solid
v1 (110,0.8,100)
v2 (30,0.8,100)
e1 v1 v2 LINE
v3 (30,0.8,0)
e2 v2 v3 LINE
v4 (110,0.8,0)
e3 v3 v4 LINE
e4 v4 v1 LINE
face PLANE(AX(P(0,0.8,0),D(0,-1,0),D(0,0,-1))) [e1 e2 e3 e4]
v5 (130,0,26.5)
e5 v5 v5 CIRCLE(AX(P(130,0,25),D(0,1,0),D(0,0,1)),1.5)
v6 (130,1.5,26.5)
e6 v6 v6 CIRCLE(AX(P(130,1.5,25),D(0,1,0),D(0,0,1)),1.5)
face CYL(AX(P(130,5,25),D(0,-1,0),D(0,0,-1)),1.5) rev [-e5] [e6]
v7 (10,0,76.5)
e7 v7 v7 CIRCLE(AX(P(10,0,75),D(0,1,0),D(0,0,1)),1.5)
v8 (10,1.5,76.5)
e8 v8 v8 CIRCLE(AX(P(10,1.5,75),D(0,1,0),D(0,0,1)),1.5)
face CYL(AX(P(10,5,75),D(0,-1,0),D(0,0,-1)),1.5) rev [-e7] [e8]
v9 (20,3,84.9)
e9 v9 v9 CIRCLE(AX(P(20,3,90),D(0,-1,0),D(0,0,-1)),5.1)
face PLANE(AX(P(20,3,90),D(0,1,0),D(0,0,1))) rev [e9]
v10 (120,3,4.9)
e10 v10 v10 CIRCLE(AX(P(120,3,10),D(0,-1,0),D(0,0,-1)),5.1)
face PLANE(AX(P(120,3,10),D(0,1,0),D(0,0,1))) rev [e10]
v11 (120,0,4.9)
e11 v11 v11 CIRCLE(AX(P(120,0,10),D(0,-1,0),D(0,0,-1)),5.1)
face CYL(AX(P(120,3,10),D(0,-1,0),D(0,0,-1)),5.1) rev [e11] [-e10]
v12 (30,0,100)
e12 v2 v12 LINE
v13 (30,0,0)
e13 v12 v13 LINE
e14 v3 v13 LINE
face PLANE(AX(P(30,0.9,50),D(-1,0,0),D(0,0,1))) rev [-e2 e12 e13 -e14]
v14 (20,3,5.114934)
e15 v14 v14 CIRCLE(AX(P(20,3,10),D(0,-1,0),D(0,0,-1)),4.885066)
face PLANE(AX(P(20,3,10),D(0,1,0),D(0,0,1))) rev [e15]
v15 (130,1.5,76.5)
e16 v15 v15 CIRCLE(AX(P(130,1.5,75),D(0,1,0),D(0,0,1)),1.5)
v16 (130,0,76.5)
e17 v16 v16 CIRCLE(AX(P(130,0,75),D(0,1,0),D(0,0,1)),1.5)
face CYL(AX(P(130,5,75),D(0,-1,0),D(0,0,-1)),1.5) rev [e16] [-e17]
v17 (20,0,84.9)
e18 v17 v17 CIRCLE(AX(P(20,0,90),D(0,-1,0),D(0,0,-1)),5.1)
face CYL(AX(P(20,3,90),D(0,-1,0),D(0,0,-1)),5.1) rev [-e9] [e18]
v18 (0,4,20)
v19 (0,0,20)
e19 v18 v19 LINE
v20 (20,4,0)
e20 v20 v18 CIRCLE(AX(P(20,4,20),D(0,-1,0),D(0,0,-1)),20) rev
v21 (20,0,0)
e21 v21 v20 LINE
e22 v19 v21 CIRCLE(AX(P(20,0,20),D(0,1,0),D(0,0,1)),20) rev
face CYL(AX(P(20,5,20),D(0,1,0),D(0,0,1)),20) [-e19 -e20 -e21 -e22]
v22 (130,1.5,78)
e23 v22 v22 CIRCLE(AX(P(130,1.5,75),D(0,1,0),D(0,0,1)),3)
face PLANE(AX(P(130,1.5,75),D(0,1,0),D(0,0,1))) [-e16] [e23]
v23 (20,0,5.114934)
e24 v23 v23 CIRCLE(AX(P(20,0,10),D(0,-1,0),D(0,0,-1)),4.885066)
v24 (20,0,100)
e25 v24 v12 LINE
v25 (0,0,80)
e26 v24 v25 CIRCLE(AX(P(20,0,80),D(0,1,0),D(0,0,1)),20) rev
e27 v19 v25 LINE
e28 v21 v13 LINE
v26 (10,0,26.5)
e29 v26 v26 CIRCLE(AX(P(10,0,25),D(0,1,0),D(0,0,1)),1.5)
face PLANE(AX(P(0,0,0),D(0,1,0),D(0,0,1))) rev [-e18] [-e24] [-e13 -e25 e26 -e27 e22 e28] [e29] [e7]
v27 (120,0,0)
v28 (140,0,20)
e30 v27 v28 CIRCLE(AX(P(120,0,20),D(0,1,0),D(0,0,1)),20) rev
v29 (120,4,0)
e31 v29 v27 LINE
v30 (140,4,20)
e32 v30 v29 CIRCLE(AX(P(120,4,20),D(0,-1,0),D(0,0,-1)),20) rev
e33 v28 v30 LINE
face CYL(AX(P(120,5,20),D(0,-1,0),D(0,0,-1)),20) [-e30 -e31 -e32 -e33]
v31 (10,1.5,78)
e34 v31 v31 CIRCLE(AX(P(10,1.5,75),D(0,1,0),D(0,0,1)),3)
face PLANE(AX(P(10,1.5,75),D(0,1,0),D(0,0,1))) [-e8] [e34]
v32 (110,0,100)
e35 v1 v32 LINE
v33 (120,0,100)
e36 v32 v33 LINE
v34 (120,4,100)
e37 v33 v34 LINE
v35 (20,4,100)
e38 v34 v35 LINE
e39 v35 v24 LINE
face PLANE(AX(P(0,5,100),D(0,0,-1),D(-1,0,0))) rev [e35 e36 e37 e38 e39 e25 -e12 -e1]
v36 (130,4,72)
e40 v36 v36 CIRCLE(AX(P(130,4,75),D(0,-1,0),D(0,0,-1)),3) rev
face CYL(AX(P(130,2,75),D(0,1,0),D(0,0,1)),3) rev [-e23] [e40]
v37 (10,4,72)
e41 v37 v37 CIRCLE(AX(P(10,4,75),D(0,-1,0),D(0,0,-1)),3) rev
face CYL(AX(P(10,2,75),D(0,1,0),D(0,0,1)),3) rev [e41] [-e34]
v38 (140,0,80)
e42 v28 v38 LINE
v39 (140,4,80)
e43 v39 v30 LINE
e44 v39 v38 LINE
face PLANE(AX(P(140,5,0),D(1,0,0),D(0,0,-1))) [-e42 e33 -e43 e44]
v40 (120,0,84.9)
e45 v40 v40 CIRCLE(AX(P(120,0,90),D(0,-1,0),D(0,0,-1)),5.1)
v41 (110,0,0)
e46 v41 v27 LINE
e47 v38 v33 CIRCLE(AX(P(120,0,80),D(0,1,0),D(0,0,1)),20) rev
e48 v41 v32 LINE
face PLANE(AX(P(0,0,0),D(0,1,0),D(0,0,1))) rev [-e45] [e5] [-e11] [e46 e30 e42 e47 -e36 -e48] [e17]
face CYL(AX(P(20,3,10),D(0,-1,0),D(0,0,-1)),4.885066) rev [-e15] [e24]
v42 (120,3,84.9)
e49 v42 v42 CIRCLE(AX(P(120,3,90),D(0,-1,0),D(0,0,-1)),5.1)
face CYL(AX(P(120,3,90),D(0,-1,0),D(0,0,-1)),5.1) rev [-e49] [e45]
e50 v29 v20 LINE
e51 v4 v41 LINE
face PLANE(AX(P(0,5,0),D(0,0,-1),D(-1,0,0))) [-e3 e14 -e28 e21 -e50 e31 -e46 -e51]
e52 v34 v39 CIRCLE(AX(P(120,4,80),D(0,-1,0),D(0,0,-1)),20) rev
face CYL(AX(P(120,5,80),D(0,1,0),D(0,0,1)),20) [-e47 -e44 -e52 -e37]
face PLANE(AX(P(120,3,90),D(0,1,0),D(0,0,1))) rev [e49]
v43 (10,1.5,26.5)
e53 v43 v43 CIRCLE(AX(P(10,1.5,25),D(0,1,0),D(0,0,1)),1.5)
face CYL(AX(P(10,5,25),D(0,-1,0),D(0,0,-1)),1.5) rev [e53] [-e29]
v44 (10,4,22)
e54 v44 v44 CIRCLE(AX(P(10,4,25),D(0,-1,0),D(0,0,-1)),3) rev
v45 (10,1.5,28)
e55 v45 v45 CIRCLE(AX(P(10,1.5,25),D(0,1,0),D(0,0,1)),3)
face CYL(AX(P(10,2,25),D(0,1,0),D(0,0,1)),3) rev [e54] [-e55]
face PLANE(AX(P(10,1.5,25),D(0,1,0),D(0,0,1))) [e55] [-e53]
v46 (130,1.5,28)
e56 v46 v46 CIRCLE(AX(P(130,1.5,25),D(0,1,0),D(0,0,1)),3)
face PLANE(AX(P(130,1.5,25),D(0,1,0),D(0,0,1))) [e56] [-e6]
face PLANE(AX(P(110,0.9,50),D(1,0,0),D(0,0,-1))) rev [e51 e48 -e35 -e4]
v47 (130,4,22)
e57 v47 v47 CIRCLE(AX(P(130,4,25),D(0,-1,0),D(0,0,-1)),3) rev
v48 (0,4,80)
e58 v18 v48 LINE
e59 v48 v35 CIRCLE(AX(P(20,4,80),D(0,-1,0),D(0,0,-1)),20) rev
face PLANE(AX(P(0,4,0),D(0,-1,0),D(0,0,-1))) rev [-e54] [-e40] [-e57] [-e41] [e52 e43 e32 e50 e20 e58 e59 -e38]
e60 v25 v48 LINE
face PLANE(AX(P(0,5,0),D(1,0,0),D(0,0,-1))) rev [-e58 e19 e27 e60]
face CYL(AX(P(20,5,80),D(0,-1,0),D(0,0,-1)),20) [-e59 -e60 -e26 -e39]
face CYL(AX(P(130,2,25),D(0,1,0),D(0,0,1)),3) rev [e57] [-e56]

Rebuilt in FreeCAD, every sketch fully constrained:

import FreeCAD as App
import Part
import Sketcher
from FreeCAD import Vector
Q = App.Units.Quantity


def edges_at(feature, points):
    """Names of the edges that pass closest to the given points."""
    edges = feature.Shape.Edges
    near = lambda p: min(range(len(edges)), key=lambda i: edges[i].distToShape(Part.Vertex(*p))[0])
    return sorted({f"Edge{near(p) + 1}" for p in points})


def add_polygon(sketch, points):
    """Adds a closed chain of lines whose ends are joined by coincident constraints."""
    first, n = sketch.GeometryCount, len(points)
    for a, b in zip(points, points[1:] + points[:1]):
        sketch.addGeometry(Part.LineSegment(App.Vector(*a, 0), App.Vector(*b, 0)), False)
    for i in range(n):
        sketch.addConstraint(Sketcher.Constraint("Coincident", first + i, 2, first + (i + 1) % n, 1))

doc = App.newDocument("Part")
params = doc.addObject("Spreadsheet::Sheet", "Params")
for row, (alias, value) in enumerate([
    ("sketch1_diameter", "3 mm"),
    ("sketch1_width", "140 mm"),
    ("sketch1_height", "100 mm"),
    ("pad1_length", "5 mm"),
    ("fillet_radius", "20 mm"),
    ("sketch2_diameter", "6 mm"),
    ("pocket1_length", "3 mm"),
    ("sketch3_width", "80 mm"),
    ("sketch3_height", "100 mm"),
    ("pocket2_length", "0.9 mm"),
    ("sketch4_diameter", "5 mm"),
    ("pocket3_length", "4 mm"),
    ("pocket4_length", "1 mm"),
    ("sketch6_diameter", "5 mm"),
    ("pad2_length", "1 mm"),
    ("sketch7_diameter", "6 mm"),
    ("pocket5_length", "0.5 mm"),
    ("sketch8_diameter", "10.2 mm"),
    ("pocket6_length", "3 mm"),
    ("sketch9_width", "80 mm"),
    ("sketch9_height", "100 mm"),
    ("pad3_length", "0.1 mm"),
], start=1):
    params.set(f"A{row}", alias)
    params.set(f"B{row}", "=" + value)
    params.setAlias(f"B{row}", alias)

body = doc.addObject("PartDesign::Body", "Body")

# Sketch on XZ plane
sketch1 = body.newObject("Sketcher::SketchObject", "Sketch")
sketch1.AttachmentSupport = (doc.getObject("XZ_Plane"), [""])
sketch1.MapMode = "FlatFace"
add_polygon(sketch1, [(0, 0), (0, 100), (140, 100), (140, 0)])  # lines 0-3
sketch1.addGeometry(Part.Circle(Vector(10, 75, 0), Vector(0, 0, 1), 1.5), False)  # 4
sketch1.addGeometry(Part.Circle(Vector(130, 75, 0), Vector(0, 0, 1), 1.5), False)  # 5
sketch1.addGeometry(Part.Circle(Vector(10, 25, 0), Vector(0, 0, 1), 1.5), False)  # 6
sketch1.addGeometry(Part.Circle(Vector(130, 25, 0), Vector(0, 0, 1), 1.5), False)  # 7
sketch1.addConstraint([
    Sketcher.Constraint("Vertical", 0),
    Sketcher.Constraint("Horizontal", 1),
    Sketcher.Constraint("Vertical", 2),
    Sketcher.Constraint("Horizontal", 3),
    Sketcher.Constraint("Coincident", 3, 2, -1, 1),
    Sketcher.Constraint("Equal", 4, 5),
    Sketcher.Constraint("Equal", 5, 6),
    Sketcher.Constraint("Equal", 6, 7),
    Sketcher.Constraint("Horizontal", 4, 3, 5, 3),
    Sketcher.Constraint("Horizontal", 6, 3, 7, 3),
    Sketcher.Constraint("Vertical", 4, 3, 6, 3),
    Sketcher.Constraint("Vertical", 5, 3, 7, 3),
    Sketcher.Constraint("Diameter", 4, Q("3 mm")),
    Sketcher.Constraint("DistanceX", 1, 1, 1, 2, Q("140 mm")),
    Sketcher.Constraint("DistanceY", 0, 1, 0, 2, Q("100 mm")),
    Sketcher.Constraint("DistanceX", -1, 1, 4, 3, Q("10 mm")),
    Sketcher.Constraint("DistanceY", -1, 1, 4, 3, Q("75 mm")),
    Sketcher.Constraint("DistanceX", -1, 1, 5, 3, Q("130 mm")),
    Sketcher.Constraint("DistanceY", -1, 1, 6, 3, Q("25 mm")),
])
sketch1.setExpression("Constraints[16]", "Params.sketch1_diameter")
sketch1.setExpression("Constraints[17]", "Params.sketch1_width")
sketch1.setExpression("Constraints[18]", "Params.sketch1_height")
pad1 = body.newObject("PartDesign::Pad", "Pad")
pad1.Profile = sketch1
pad1.setExpression("Length", "Params.pad1_length")
pad1.Reversed = True
doc.recompute()

fillet = body.newObject("PartDesign::Fillet", "Fillet")
fillet.Base = (pad1, edges_at(pad1, [
    (140, 2.5, 100),
    (0, 2.5, 100),
    (0, 2.5, 0),
    (140, 2.5, 0),
]))
fillet.setExpression("Radius", "Params.fillet_radius")

# Sketch on XZ plane
sketch2 = body.newObject("Sketcher::SketchObject", "Sketch001")
sketch2.AttachmentSupport = (doc.getObject("XZ_Plane"), [""])
sketch2.MapMode = "FlatFace"
sketch2.AttachmentOffset = App.Placement(Vector(0, 0, -5), App.Rotation())
sketch2.addGeometry([
    Part.Circle(Vector(10, 25, 0), Vector(0, 0, 1), 3),
    Part.Circle(Vector(10, 75, 0), Vector(0, 0, 1), 3),
    Part.Circle(Vector(130, 25, 0), Vector(0, 0, 1), 3),
    Part.Circle(Vector(130, 75, 0), Vector(0, 0, 1), 3),
], False)
sketch2.addConstraint([
    Sketcher.Constraint("Equal", 0, 1),
    Sketcher.Constraint("Equal", 1, 2),
    Sketcher.Constraint("Equal", 2, 3),
    Sketcher.Constraint("Horizontal", 0, 3, 2, 3),
    Sketcher.Constraint("Horizontal", 1, 3, 3, 3),
    Sketcher.Constraint("Vertical", 0, 3, 1, 3),
    Sketcher.Constraint("Vertical", 2, 3, 3, 3),
    Sketcher.Constraint("Diameter", 0, Q("6 mm")),
    Sketcher.Constraint("DistanceX", -1, 1, 0, 3, Q("10 mm")),
    Sketcher.Constraint("DistanceY", -1, 1, 0, 3, Q("25 mm")),
    Sketcher.Constraint("DistanceY", -1, 1, 1, 3, Q("75 mm")),
    Sketcher.Constraint("DistanceX", -1, 1, 2, 3, Q("130 mm")),
])
sketch2.setExpression("Constraints[7]", "Params.sketch2_diameter")
pocket1 = body.newObject("PartDesign::Pocket", "Pocket")
pocket1.Profile = sketch2
pocket1.setExpression("Length", "Params.pocket1_length")
pocket1.Reversed = True

# Sketch on XZ plane
sketch3 = body.newObject("Sketcher::SketchObject", "Sketch002")
sketch3.AttachmentSupport = (doc.getObject("XZ_Plane"), [""])
sketch3.MapMode = "FlatFace"
add_polygon(sketch3, [(110, 100), (30, 100), (30, 0), (110, 0)])  # lines 0-3
sketch3.addConstraint([
    Sketcher.Constraint("Horizontal", 0),
    Sketcher.Constraint("Vertical", 1),
    Sketcher.Constraint("Horizontal", 2),
    Sketcher.Constraint("Vertical", 3),
    Sketcher.Constraint("PointOnObject", 1, 2, -1),
    Sketcher.Constraint("DistanceX", 0, 2, 0, 1, Q("80 mm")),
    Sketcher.Constraint("DistanceY", 1, 2, 1, 1, Q("100 mm")),
    Sketcher.Constraint("DistanceX", -1, 1, 0, 2, Q("30 mm")),
])
sketch3.setExpression("Constraints[9]", "Params.sketch3_width")
sketch3.setExpression("Constraints[10]", "Params.sketch3_height")
pocket2 = body.newObject("PartDesign::Pocket", "Pocket001")
pocket2.Profile = sketch3
pocket2.setExpression("Length", "Params.pocket2_length")

# Sketch on XZ plane
sketch4 = body.newObject("Sketcher::SketchObject", "Sketch003")
sketch4.AttachmentSupport = (doc.getObject("XZ_Plane"), [""])
sketch4.MapMode = "FlatFace"
sketch4.addGeometry([
    Part.Circle(Vector(20, 90, 0), Vector(0, 0, 1), 2.5),
    Part.Circle(Vector(120, 90, 0), Vector(0, 0, 1), 2.5),
    Part.Circle(Vector(120, 10, 0), Vector(0, 0, 1), 2.5),
    Part.Circle(Vector(20, 10, 0), Vector(0, 0, 1), 2.5),
], False)
sketch4.addConstraint([
    Sketcher.Constraint("Equal", 0, 1),
    Sketcher.Constraint("Equal", 1, 2),
    Sketcher.Constraint("Equal", 2, 3),
    Sketcher.Constraint("Horizontal", 0, 3, 1, 3),
    Sketcher.Constraint("Horizontal", 2, 3, 3, 3),
    Sketcher.Constraint("Vertical", 1, 3, 2, 3),
    Sketcher.Constraint("Vertical", 0, 3, 3, 3),
    Sketcher.Constraint("Diameter", 0, Q("5 mm")),
    Sketcher.Constraint("DistanceX", -1, 1, 0, 3, Q("20 mm")),
    Sketcher.Constraint("DistanceY", -1, 1, 0, 3, Q("90 mm")),
    Sketcher.Constraint("DistanceX", -1, 1, 1, 3, Q("120 mm")),
    Sketcher.Constraint("DistanceY", -1, 1, 2, 3, Q("10 mm")),
])
sketch4.setExpression("Constraints[7]", "Params.sketch4_diameter")
pocket3 = body.newObject("PartDesign::Pocket", "Pocket002")
pocket3.Profile = sketch4
pocket3.setExpression("Length", "Params.pocket3_length")

# Sketch on XZ plane
sketch5 = body.newObject("Sketcher::SketchObject", "Sketch004")
sketch5.AttachmentSupport = (doc.getObject("XZ_Plane"), [""])
sketch5.MapMode = "FlatFace"
sketch5.AttachmentOffset = App.Placement(Vector(0, 0, -5), App.Rotation())
add_polygon(sketch5, [(0, 0), (0, 102), (158, 102), (158, 0)])  # lines 0-3
sketch5.addConstraint([
    Sketcher.Constraint("Vertical", 0),
    Sketcher.Constraint("Horizontal", 1),
    Sketcher.Constraint("Vertical", 2),
    Sketcher.Constraint("Horizontal", 3),
    Sketcher.Constraint("Coincident", 3, 2, -1, 1),
    Sketcher.Constraint("DistanceY", 0, 1, 0, 2, Q("102.032931 mm")),
    Sketcher.Constraint("DistanceX", 1, 1, 1, 2, Q("157.651834 mm")),
])
pocket4 = body.newObject("PartDesign::Pocket", "Pocket003")
pocket4.Profile = sketch5
pocket4.setExpression("Length", "Params.pocket4_length")
pocket4.Reversed = True

# Sketch on XZ plane
sketch6 = body.newObject("Sketcher::SketchObject", "Sketch005")
sketch6.AttachmentSupport = (doc.getObject("XZ_Plane"), [""])
sketch6.MapMode = "FlatFace"
sketch6.AttachmentOffset = App.Placement(Vector(0, 0, -3), App.Rotation())
sketch6.addGeometry([
    Part.Circle(Vector(20, 10, 0), Vector(0, 0, 1), 2.5),
    Part.Circle(Vector(120, 10, 0), Vector(0, 0, 1), 2.5),
    Part.Circle(Vector(120, 90, 0), Vector(0, 0, 1), 2.5),
    Part.Circle(Vector(20, 90, 0), Vector(0, 0, 1), 2.5),
], False)
sketch6.addConstraint([
    Sketcher.Constraint("Equal", 0, 1),
    Sketcher.Constraint("Equal", 1, 2),
    Sketcher.Constraint("Equal", 2, 3),
    Sketcher.Constraint("Horizontal", 0, 3, 1, 3),
    Sketcher.Constraint("Horizontal", 2, 3, 3, 3),
    Sketcher.Constraint("Vertical", 1, 3, 2, 3),
    Sketcher.Constraint("Vertical", 0, 3, 3, 3),
    Sketcher.Constraint("Diameter", 0, Q("5 mm")),
    Sketcher.Constraint("DistanceX", -1, 1, 0, 3, Q("20 mm")),
    Sketcher.Constraint("DistanceY", -1, 1, 0, 3, Q("10 mm")),
    Sketcher.Constraint("DistanceX", -1, 1, 1, 3, Q("120 mm")),
    Sketcher.Constraint("DistanceY", -1, 1, 2, 3, Q("90 mm")),
])
sketch6.setExpression("Constraints[7]", "Params.sketch6_diameter")
pad2 = body.newObject("PartDesign::Pad", "Pad001")
pad2.Profile = sketch6
pad2.setExpression("Length", "Params.pad2_length")
pad2.Reversed = True

# Sketch on XZ plane
sketch7 = body.newObject("Sketcher::SketchObject", "Sketch006")
sketch7.AttachmentSupport = (doc.getObject("XZ_Plane"), [""])
sketch7.MapMode = "FlatFace"
sketch7.AttachmentOffset = App.Placement(Vector(0, 0, -2), App.Rotation())
sketch7.addGeometry([
    Part.Circle(Vector(10, 25, 0), Vector(0, 0, 1), 3),
    Part.Circle(Vector(10, 75, 0), Vector(0, 0, 1), 3),
    Part.Circle(Vector(130, 75, 0), Vector(0, 0, 1), 3),
    Part.Circle(Vector(130, 25, 0), Vector(0, 0, 1), 3),
], False)
sketch7.addConstraint([
    Sketcher.Constraint("Equal", 0, 1),
    Sketcher.Constraint("Equal", 1, 2),
    Sketcher.Constraint("Equal", 2, 3),
    Sketcher.Constraint("Horizontal", 1, 3, 2, 3),
    Sketcher.Constraint("Horizontal", 0, 3, 3, 3),
    Sketcher.Constraint("Vertical", 0, 3, 1, 3),
    Sketcher.Constraint("Vertical", 2, 3, 3, 3),
    Sketcher.Constraint("Diameter", 0, Q("6 mm")),
    Sketcher.Constraint("DistanceX", -1, 1, 0, 3, Q("10 mm")),
    Sketcher.Constraint("DistanceY", -1, 1, 0, 3, Q("25 mm")),
    Sketcher.Constraint("DistanceY", -1, 1, 1, 3, Q("75 mm")),
    Sketcher.Constraint("DistanceX", -1, 1, 2, 3, Q("130 mm")),
])
sketch7.setExpression("Constraints[7]", "Params.sketch7_diameter")
pocket5 = body.newObject("PartDesign::Pocket", "Pocket004")
pocket5.Profile = sketch7
pocket5.setExpression("Length", "Params.pocket5_length")
pocket5.Reversed = True

# Sketch on XZ plane
sketch8 = body.newObject("Sketcher::SketchObject", "Sketch007")
sketch8.AttachmentSupport = (doc.getObject("XZ_Plane"), [""])
sketch8.MapMode = "FlatFace"
sketch8.addGeometry([
    Part.Circle(Vector(20, 90, 0), Vector(0, 0, 1), 5.1),
    Part.Circle(Vector(120, 90, 0), Vector(0, 0, 1), 5.1),
    Part.Circle(Vector(20, 10, 0), Vector(0, 0, 1), 4.9),
    Part.Circle(Vector(120, 10, 0), Vector(0, 0, 1), 5.1),
], False)
sketch8.addConstraint([
    Sketcher.Constraint("Equal", 0, 1),
    Sketcher.Constraint("Equal", 1, 3),
    Sketcher.Constraint("Horizontal", 0, 3, 1, 3),
    Sketcher.Constraint("Horizontal", 2, 3, 3, 3),
    Sketcher.Constraint("Vertical", 0, 3, 2, 3),
    Sketcher.Constraint("Vertical", 1, 3, 3, 3),
    Sketcher.Constraint("Diameter", 0, Q("10.2 mm")),
    Sketcher.Constraint("DistanceX", -1, 1, 0, 3, Q("20 mm")),
    Sketcher.Constraint("DistanceY", -1, 1, 0, 3, Q("90 mm")),
    Sketcher.Constraint("DistanceX", -1, 1, 1, 3, Q("120 mm")),
    Sketcher.Constraint("DistanceY", -1, 1, 2, 3, Q("10 mm")),
    Sketcher.Constraint("Diameter", 2, Q("9.770132 mm")),
])
sketch8.setExpression("Constraints[6]", "Params.sketch8_diameter")
pocket6 = body.newObject("PartDesign::Pocket", "Pocket005")
pocket6.Profile = sketch8
pocket6.setExpression("Length", "Params.pocket6_length")

# Sketch on XZ plane
sketch9 = body.newObject("Sketcher::SketchObject", "Sketch008")
sketch9.AttachmentSupport = (doc.getObject("XZ_Plane"), [""])
sketch9.MapMode = "FlatFace"
sketch9.AttachmentOffset = App.Placement(Vector(0, 0, -0.9), App.Rotation())
add_polygon(sketch9, [(30, 100), (30, 0), (110, 0), (110, 100)])  # lines 0-3
sketch9.addConstraint([
    Sketcher.Constraint("Vertical", 0),
    Sketcher.Constraint("Horizontal", 1),
    Sketcher.Constraint("Vertical", 2),
    Sketcher.Constraint("Horizontal", 3),
    Sketcher.Constraint("PointOnObject", 0, 2, -1),
    Sketcher.Constraint("DistanceX", 1, 1, 1, 2, Q("80 mm")),
    Sketcher.Constraint("DistanceY", 0, 2, 0, 1, Q("100 mm")),
    Sketcher.Constraint("DistanceX", -1, 1, 0, 2, Q("30 mm")),
])
sketch9.setExpression("Constraints[9]", "Params.sketch9_width")
sketch9.setExpression("Constraints[10]", "Params.sketch9_height")
pad3 = body.newObject("PartDesign::Pad", "Pad002")
pad3.Profile = sketch9
pad3.setExpression("Length", "Params.pad3_length")

doc.recompute()
